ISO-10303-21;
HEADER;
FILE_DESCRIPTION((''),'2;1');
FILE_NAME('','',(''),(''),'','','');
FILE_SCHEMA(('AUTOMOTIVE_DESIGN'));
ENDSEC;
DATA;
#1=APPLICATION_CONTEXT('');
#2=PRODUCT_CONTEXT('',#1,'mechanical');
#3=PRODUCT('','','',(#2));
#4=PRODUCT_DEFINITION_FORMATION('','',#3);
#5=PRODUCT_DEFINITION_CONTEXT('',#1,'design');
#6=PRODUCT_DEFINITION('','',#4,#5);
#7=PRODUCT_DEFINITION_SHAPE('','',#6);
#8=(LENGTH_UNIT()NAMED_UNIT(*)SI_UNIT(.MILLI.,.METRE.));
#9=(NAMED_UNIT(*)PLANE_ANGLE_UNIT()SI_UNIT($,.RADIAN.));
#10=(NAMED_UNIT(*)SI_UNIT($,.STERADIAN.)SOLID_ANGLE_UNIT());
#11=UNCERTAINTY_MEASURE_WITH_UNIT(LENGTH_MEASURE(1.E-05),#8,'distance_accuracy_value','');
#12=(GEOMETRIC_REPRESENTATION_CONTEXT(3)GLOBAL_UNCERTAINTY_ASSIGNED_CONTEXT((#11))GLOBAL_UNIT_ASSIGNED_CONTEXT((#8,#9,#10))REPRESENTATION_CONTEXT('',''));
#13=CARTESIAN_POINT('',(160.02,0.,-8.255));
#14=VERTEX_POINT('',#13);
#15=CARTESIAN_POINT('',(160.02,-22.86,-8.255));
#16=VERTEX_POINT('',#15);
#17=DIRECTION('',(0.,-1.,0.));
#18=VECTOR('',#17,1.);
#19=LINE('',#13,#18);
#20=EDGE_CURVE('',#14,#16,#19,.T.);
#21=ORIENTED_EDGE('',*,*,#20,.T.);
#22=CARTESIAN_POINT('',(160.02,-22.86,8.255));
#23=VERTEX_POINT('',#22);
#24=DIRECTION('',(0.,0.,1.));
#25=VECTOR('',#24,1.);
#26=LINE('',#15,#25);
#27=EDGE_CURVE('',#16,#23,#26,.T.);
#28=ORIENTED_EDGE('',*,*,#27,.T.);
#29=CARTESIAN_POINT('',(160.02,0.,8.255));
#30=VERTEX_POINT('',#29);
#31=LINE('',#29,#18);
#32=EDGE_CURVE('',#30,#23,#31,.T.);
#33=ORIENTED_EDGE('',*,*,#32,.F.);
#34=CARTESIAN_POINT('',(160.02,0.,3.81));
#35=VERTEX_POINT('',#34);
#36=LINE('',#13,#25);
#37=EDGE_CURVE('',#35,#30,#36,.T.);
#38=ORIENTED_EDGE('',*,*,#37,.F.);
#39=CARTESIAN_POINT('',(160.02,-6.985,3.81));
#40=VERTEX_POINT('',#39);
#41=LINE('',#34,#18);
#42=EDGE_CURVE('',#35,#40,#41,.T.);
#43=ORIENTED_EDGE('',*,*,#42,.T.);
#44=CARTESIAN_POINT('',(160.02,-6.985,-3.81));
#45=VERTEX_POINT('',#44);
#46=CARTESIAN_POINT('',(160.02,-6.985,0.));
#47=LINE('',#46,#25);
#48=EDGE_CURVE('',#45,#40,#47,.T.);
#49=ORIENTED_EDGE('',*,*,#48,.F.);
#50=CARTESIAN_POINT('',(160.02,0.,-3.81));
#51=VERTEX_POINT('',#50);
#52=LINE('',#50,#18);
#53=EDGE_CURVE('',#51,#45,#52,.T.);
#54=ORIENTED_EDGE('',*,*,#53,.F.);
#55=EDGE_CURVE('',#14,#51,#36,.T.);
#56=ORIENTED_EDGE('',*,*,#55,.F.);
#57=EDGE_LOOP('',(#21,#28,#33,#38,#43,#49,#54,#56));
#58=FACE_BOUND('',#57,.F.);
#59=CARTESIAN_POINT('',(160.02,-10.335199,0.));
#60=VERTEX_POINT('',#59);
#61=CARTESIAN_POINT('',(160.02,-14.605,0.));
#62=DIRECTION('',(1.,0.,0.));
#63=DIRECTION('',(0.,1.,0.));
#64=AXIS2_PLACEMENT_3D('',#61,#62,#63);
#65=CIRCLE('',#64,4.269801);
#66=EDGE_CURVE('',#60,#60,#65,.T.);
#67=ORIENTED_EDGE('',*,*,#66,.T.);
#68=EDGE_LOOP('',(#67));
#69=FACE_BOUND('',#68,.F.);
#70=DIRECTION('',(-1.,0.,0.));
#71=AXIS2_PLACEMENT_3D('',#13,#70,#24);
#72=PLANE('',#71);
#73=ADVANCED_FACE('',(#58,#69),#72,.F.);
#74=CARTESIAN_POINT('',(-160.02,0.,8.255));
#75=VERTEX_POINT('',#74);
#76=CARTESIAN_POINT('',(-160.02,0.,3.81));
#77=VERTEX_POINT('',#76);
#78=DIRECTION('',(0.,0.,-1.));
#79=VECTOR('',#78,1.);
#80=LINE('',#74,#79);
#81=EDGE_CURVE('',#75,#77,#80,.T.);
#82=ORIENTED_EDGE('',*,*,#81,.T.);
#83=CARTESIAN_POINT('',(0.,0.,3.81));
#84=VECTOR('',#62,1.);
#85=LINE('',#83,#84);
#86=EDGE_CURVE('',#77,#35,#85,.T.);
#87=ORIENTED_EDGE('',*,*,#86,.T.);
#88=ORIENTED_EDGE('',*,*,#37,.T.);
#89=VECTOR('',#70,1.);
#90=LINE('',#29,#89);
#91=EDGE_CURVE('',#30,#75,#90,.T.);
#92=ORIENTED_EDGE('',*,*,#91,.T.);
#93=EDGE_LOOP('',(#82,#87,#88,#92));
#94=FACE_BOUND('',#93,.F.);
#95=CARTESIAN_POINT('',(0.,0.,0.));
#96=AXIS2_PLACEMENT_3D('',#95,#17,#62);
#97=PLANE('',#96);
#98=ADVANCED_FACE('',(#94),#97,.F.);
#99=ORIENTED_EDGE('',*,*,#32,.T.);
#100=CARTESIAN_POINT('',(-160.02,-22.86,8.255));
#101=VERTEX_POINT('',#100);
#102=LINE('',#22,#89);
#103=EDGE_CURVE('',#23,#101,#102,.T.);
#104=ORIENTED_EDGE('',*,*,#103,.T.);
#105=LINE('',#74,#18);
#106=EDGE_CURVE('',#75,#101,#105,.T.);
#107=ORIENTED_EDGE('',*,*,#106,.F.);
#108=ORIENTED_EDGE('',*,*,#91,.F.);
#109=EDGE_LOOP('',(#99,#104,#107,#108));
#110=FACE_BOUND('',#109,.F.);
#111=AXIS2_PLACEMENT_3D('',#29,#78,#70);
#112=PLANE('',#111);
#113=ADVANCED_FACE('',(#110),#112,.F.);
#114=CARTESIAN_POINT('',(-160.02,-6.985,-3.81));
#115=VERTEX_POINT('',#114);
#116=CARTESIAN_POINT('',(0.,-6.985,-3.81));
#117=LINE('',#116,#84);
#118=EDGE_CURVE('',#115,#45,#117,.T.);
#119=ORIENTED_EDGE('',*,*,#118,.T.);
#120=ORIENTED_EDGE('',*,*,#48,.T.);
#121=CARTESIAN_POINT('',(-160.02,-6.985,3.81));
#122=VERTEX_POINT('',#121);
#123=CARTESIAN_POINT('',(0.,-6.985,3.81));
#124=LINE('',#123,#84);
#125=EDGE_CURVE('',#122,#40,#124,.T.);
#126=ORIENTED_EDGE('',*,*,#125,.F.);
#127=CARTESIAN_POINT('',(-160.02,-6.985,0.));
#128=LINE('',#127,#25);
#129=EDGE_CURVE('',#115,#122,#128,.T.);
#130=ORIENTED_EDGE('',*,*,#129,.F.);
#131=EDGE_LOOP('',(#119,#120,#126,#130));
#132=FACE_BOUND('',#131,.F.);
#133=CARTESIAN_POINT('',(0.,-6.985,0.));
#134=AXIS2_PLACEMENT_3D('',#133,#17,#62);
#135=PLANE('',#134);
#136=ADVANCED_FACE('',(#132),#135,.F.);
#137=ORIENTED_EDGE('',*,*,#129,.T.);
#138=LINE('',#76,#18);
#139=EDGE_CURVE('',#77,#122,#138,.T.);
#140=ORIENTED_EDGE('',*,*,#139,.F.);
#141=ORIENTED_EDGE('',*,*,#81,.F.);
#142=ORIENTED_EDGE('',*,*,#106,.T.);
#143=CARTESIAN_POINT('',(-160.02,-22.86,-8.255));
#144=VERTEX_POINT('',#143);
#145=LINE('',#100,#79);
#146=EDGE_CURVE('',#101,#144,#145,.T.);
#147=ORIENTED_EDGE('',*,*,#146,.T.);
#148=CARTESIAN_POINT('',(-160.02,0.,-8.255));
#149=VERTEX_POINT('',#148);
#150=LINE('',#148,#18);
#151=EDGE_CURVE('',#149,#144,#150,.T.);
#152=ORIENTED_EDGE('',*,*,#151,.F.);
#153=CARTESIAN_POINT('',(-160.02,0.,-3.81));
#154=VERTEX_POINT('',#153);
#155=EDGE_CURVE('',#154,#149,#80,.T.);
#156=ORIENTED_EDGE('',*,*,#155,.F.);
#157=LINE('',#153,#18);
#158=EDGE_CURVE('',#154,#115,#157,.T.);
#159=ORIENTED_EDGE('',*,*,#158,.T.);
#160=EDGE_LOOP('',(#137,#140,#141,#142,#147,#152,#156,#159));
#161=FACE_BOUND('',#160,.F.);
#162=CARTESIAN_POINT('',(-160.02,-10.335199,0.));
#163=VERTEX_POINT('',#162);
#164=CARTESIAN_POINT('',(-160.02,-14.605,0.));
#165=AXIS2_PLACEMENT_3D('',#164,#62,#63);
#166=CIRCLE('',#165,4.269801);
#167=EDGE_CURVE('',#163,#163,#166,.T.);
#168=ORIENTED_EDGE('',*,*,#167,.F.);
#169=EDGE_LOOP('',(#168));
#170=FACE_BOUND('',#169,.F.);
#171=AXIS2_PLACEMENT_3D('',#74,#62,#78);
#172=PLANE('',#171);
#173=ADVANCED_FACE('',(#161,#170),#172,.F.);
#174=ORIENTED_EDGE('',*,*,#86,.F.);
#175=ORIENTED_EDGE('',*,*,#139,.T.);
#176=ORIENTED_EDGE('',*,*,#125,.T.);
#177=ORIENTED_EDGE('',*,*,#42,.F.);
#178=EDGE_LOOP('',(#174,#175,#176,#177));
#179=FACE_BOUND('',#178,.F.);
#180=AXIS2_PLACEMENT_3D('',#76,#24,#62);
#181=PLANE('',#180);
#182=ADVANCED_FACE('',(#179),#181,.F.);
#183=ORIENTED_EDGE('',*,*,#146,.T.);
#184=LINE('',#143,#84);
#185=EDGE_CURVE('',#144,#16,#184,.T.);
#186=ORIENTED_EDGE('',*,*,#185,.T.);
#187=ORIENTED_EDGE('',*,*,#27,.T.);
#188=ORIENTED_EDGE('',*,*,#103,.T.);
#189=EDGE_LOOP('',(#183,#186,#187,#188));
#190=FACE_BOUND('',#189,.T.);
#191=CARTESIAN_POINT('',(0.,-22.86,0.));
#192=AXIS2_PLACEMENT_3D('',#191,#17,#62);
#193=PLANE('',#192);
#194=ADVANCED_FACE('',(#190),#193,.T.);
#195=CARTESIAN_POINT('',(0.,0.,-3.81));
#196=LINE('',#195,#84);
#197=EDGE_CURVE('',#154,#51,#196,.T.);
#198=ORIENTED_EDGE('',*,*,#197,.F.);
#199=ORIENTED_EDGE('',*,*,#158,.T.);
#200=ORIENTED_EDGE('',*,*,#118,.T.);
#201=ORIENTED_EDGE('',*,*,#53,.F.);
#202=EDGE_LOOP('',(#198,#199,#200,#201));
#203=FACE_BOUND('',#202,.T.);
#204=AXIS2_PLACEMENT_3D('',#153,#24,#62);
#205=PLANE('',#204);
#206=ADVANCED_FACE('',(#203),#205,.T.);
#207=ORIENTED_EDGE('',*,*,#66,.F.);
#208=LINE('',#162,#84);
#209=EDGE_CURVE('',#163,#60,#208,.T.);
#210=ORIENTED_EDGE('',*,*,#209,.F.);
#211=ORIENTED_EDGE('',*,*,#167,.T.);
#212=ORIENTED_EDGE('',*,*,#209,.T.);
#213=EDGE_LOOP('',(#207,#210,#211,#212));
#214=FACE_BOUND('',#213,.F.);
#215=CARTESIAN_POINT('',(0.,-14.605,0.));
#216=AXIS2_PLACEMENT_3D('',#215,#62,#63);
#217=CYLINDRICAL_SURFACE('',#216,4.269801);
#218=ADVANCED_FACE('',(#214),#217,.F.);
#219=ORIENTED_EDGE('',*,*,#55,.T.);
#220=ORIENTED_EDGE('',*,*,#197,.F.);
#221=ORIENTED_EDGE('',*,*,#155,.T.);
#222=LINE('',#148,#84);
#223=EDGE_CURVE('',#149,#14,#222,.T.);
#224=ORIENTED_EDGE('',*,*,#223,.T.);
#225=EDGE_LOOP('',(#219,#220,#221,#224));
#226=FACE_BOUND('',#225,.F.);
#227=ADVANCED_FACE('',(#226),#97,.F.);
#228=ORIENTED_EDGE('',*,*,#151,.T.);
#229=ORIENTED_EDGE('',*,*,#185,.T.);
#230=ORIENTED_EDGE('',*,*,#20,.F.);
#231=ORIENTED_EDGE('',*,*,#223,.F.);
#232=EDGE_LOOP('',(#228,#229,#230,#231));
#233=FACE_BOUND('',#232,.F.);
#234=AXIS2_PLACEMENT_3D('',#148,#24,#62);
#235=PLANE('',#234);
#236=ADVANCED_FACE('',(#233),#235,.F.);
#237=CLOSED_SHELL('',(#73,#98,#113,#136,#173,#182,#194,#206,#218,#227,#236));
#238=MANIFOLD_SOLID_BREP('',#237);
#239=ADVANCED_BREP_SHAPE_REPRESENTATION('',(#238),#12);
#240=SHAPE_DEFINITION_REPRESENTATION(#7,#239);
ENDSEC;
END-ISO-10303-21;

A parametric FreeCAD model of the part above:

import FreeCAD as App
import Part
import Sketcher

V = App.Vector
Q = App.Units.Quantity

doc = App.newDocument("Part")
body = doc.addObject("PartDesign::Body", "Body")

# Sketch on XZ plane
sketch1 = doc.addObject("Sketcher::SketchObject", "Sketch")
body.addObject(sketch1)
sketch1.AttachmentSupport = (doc.XZ_Plane, [""])
sketch1.MapMode = "FlatFace"
sketch1.addGeometry([
    Part.LineSegment(V(160.02, 8.255, 0), V(-160.02, 8.255, 0)),
    Part.LineSegment(V(-160.02, 8.255, 0), V(-160.02, -8.255, 0)),
    Part.LineSegment(V(-160.02, -8.255, 0), V(160.02, -8.255, 0)),
    Part.LineSegment(V(160.02, -8.255, 0), V(160.02, 8.255, 0)),
], False)
sketch1.addConstraint([
    Sketcher.Constraint("Coincident", 0, 2, 1, 1),
    Sketcher.Constraint("Coincident", 1, 2, 2, 1),
    Sketcher.Constraint("Coincident", 2, 2, 3, 1),
    Sketcher.Constraint("Coincident", 3, 2, 0, 1),
    Sketcher.Constraint("Horizontal", 0),
    Sketcher.Constraint("Vertical", 1),
    Sketcher.Constraint("Horizontal", 2),
    Sketcher.Constraint("Vertical", 3),
    Sketcher.Constraint("Symmetric", 0, 2, 2, 2, -1, 1),
    Sketcher.Constraint("DistanceX", 0, 2, 0, 1, Q("12.6 in")),
    Sketcher.Constraint("DistanceY", 1, 2, 1, 1, Q("0.65 in")),
])
pad1 = doc.addObject("PartDesign::Pad", "Pad")
body.addObject(pad1)
pad1.Profile = sketch1
pad1.Length = Q("0.9 in")

# Sketch on XZ plane
sketch2 = doc.addObject("Sketcher::SketchObject", "Sketch001")
body.addObject(sketch2)
sketch2.AttachmentSupport = (doc.XZ_Plane, [""])
sketch2.MapMode = "FlatFace"
sketch2.addGeometry([
    Part.LineSegment(V(-160.02, 3.81, 0), V(-160.02, -3.81, 0)),
    Part.LineSegment(V(-160.02, -3.81, 0), V(160.02, -3.81, 0)),
    Part.LineSegment(V(160.02, -3.81, 0), V(160.02, 3.81, 0)),
    Part.LineSegment(V(160.02, 3.81, 0), V(-160.02, 3.81, 0)),
], False)
sketch2.addConstraint([
    Sketcher.Constraint("Coincident", 0, 2, 1, 1),
    Sketcher.Constraint("Coincident", 1, 2, 2, 1),
    Sketcher.Constraint("Coincident", 2, 2, 3, 1),
    Sketcher.Constraint("Coincident", 3, 2, 0, 1),
    Sketcher.Constraint("Vertical", 0),
    Sketcher.Constraint("Horizontal", 1),
    Sketcher.Constraint("Vertical", 2),
    Sketcher.Constraint("Horizontal", 3),
    Sketcher.Constraint("Symmetric", 0, 2, 2, 2, -1, 1),
    Sketcher.Constraint("DistanceX", 1, 1, 1, 2, Q("12.6 in")),
    Sketcher.Constraint("DistanceY", 0, 2, 0, 1, Q("0.3 in")),
])
pocket1 = doc.addObject("PartDesign::Pocket", "Pocket")
body.addObject(pocket1)
pocket1.Profile = sketch2
pocket1.Length = Q("0.275 in")
pocket1.Reversed = True

# Sketch on YZ plane
sketch3 = doc.addObject("Sketcher::SketchObject", "Sketch002")
body.addObject(sketch3)
sketch3.AttachmentSupport = (doc.YZ_Plane, [""])
sketch3.MapMode = "FlatFace"
sketch3.addGeometry(Part.Circle(V(-14.605, 0, 0), V(0, 0, 1), 4.269801), False)
sketch3.addConstraint([
    Sketcher.Constraint("PointOnObject", 0, 3, -1),
    Sketcher.Constraint("DistanceX", 0, 3, -1, 1, Q("0.575 in")),
    Sketcher.Constraint("Diameter", 0, 8.539602),
])
pocket2 = doc.addObject("PartDesign::Pocket", "Pocket001")
body.addObject(pocket2)
pocket2.Profile = sketch3
pocket2.Length = Q("12.6 in")
pocket2.Midplane = True

doc.recompute()
